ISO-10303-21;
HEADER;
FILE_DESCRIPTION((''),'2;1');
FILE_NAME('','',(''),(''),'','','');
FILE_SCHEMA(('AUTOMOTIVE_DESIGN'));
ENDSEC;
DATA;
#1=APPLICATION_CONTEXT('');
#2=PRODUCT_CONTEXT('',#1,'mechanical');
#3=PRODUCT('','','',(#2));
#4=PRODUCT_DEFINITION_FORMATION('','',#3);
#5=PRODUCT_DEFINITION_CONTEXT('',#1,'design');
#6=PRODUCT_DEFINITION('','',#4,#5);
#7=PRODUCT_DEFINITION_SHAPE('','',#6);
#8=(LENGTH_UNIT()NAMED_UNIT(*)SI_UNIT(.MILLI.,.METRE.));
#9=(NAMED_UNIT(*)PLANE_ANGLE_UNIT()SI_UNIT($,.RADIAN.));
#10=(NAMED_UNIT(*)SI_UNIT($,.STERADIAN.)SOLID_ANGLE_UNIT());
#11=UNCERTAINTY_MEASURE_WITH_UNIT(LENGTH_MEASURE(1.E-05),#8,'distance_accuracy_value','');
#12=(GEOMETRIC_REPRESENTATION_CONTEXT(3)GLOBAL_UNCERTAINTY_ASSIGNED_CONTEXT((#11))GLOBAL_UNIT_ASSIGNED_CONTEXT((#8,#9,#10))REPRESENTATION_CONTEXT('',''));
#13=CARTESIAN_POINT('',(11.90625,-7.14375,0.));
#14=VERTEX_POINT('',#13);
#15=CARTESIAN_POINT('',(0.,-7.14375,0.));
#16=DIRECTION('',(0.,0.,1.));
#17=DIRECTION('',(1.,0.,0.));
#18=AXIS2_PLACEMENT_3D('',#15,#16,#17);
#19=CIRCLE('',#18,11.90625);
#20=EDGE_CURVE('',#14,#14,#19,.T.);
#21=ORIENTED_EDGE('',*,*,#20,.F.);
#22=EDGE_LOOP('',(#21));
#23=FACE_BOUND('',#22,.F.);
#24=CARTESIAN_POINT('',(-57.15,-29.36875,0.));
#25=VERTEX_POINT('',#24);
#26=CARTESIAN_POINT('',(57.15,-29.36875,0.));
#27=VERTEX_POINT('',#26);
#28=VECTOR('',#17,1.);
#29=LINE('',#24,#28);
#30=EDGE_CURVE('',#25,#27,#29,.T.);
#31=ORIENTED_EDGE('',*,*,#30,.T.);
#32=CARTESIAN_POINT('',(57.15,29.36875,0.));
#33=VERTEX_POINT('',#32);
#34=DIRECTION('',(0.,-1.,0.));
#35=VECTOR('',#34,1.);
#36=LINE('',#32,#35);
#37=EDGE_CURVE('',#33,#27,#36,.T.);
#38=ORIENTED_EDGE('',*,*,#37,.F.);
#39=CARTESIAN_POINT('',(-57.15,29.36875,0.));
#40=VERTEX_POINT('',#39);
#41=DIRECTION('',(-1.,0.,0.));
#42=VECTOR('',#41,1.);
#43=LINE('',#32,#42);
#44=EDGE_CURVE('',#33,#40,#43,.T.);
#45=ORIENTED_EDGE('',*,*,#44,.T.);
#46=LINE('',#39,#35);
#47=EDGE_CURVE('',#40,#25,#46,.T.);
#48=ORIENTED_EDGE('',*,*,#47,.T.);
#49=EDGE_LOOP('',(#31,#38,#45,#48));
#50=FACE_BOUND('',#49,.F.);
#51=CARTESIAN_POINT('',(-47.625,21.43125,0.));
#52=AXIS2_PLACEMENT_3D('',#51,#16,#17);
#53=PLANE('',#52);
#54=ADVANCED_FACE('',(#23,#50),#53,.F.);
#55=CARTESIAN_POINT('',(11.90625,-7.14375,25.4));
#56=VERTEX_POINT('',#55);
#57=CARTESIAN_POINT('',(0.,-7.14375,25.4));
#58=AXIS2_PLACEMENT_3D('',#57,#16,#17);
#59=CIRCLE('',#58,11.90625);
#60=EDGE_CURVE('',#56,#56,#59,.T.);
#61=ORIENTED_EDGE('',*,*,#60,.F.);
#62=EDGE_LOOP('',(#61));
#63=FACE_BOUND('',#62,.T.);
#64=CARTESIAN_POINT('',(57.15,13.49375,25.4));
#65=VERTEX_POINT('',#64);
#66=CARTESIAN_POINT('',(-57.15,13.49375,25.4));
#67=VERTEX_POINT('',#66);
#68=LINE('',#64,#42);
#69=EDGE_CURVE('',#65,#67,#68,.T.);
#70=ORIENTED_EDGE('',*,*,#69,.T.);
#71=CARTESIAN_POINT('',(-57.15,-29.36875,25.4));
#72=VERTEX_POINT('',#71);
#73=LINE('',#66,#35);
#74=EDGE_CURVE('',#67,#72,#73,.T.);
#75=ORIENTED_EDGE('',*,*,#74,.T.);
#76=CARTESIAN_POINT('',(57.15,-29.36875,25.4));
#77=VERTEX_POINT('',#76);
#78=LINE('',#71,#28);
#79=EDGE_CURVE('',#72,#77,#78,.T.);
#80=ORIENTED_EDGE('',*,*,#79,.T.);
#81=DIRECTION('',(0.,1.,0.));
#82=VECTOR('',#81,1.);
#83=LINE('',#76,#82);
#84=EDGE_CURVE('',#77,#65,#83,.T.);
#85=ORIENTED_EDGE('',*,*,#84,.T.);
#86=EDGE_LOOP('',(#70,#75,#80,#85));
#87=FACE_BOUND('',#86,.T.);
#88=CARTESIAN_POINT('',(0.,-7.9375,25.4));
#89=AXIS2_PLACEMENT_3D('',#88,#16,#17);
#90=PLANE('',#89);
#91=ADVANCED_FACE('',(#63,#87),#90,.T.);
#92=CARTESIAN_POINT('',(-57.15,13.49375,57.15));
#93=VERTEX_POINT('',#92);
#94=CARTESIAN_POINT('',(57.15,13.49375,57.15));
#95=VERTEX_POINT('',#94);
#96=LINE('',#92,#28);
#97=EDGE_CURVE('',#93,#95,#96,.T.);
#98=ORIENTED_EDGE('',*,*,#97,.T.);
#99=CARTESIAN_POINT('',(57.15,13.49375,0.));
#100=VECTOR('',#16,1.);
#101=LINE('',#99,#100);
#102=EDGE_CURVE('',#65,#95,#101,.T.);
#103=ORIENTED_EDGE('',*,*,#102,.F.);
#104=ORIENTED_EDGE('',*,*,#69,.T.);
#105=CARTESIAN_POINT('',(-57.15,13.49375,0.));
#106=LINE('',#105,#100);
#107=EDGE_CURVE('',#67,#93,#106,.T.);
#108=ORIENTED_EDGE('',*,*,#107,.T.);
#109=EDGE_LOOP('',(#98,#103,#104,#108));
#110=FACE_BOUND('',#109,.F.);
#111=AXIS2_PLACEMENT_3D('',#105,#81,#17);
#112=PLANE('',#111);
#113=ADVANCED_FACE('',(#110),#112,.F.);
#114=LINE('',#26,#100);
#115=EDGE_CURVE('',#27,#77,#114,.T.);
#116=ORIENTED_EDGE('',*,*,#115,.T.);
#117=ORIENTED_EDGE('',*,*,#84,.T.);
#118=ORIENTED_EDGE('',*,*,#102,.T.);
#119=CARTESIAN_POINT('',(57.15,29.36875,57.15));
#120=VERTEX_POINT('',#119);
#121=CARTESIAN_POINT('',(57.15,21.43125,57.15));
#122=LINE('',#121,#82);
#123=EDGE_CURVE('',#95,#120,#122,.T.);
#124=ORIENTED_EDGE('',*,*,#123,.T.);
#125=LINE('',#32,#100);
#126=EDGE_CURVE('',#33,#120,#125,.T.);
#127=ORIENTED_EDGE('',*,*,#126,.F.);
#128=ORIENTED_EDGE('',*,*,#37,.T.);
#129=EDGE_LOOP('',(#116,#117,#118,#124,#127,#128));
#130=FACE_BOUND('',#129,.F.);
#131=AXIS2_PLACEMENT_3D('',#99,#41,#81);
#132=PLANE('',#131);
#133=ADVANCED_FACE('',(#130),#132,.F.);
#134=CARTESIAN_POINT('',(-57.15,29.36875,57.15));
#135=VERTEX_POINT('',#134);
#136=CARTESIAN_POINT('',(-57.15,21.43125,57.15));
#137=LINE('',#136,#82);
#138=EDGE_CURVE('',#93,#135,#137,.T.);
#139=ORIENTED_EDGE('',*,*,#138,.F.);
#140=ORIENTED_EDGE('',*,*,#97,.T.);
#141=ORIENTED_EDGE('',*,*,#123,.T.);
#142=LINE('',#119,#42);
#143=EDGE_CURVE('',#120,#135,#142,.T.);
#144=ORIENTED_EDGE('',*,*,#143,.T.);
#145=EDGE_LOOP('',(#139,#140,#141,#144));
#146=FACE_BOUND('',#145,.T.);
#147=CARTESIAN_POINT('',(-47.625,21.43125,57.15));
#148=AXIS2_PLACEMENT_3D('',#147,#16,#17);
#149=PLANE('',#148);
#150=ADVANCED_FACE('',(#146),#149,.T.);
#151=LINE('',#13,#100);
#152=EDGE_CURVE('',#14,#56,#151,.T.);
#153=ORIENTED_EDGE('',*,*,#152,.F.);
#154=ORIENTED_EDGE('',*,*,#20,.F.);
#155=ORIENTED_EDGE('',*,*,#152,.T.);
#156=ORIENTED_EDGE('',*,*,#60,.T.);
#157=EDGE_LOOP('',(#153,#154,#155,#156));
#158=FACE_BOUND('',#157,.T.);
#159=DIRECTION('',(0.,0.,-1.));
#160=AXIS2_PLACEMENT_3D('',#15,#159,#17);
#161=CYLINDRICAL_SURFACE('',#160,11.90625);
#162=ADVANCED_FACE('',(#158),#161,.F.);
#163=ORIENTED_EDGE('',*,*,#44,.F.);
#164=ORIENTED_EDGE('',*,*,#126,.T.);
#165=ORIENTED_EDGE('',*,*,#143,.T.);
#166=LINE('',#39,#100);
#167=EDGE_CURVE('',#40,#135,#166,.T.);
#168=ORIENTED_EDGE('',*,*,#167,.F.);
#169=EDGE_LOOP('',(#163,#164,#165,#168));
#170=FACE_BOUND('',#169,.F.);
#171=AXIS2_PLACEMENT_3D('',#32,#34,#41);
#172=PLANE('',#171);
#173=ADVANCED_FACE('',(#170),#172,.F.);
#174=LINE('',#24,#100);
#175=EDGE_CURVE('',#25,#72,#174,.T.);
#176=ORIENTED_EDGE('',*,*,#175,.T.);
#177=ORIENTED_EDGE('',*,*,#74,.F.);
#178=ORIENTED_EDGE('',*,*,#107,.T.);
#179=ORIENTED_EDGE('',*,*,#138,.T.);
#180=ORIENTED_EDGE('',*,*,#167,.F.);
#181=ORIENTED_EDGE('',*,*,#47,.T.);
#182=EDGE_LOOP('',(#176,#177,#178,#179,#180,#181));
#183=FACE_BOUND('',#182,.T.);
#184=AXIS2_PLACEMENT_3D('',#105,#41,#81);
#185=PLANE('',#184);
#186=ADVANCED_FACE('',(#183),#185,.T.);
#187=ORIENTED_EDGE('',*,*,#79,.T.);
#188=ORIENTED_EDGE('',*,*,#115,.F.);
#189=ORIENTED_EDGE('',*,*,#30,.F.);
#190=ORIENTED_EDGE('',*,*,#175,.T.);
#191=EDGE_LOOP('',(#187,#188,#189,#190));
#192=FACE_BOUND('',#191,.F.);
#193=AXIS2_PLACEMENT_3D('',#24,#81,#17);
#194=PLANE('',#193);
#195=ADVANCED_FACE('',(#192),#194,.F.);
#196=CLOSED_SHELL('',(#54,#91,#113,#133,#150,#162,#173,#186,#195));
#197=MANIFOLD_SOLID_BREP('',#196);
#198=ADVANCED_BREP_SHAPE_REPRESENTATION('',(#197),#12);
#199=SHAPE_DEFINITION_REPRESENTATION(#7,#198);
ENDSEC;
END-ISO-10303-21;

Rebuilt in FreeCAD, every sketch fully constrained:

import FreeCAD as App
import Part
import Sketcher
Q = App.Units.Quantity


def add_polygon(sketch, points):
    """Adds a closed chain of lines whose ends are joined by coincident constraints."""
    first, n = sketch.GeometryCount, len(points)
    for a, b in zip(points, points[1:] + points[:1]):
        sketch.addGeometry(Part.LineSegment(App.Vector(*a, 0), App.Vector(*b, 0)), False)
    for i in range(n):
        sketch.addConstraint(Sketcher.Constraint("Coincident", first + i, 2, first + (i + 1) % n, 1))

doc = App.newDocument("Part")
body = doc.addObject("PartDesign::Body", "Body")

sketch1 = body.newObject("Sketcher::SketchObject", "Sketch")
sketch1.AttachmentSupport = (doc.getObject("XY_Plane"), [""])
sketch1.MapMode = "FlatFace"
add_polygon(sketch1, [(-57, -29), (57, -29), (57, 13), (-57, 13)])
sketch1.addGeometry(Part.Circle(App.Vector(0, -7, 0), App.Vector(0, 0, 1), 12), False)
sketch1.addConstraint(Sketcher.Constraint("Horizontal", 0))
sketch1.addConstraint(Sketcher.Constraint("Vertical", 1))
sketch1.addConstraint(Sketcher.Constraint("Horizontal", 2))
sketch1.addConstraint(Sketcher.Constraint("Vertical", 3))
sketch1.addConstraint(Sketcher.Constraint("PointOnObject", 4, 3, -2))
sketch1.addConstraint(Sketcher.Constraint("Diameter", 4, Q("0.9375 in")))
sketch1.addConstraint(Sketcher.Constraint("DistanceX", 0, 1, 0, 2, Q("4.5 in")))
sketch1.addConstraint(Sketcher.Constraint("DistanceY", 1, 1, 1, 2, Q("1.6875 in")))
sketch1.addConstraint(Sketcher.Constraint("DistanceX", -1, 1, 0, 2, Q("2.25 in")))
sketch1.addConstraint(Sketcher.Constraint("DistanceY", 4, 3, -1, 1, Q("0.28125 in")))
sketch1.addConstraint(Sketcher.Constraint("DistanceY", 0, 2, -1, 1, Q("1.15625 in")))
pad1 = body.newObject("PartDesign::Pad", "Pad")
pad1.Profile = sketch1
pad1.Length = Q("1 in")

sketch2 = body.newObject("Sketcher::SketchObject", "Sketch001")
sketch2.AttachmentSupport = (doc.getObject("XY_Plane"), [""])
sketch2.MapMode = "FlatFace"
add_polygon(sketch2, [(-57, 29), (-57, 13), (57, 13), (57, 29)])
sketch2.addConstraint(Sketcher.Constraint("Vertical", 0))
sketch2.addConstraint(Sketcher.Constraint("Horizontal", 1))
sketch2.addConstraint(Sketcher.Constraint("Vertical", 2))
sketch2.addConstraint(Sketcher.Constraint("Horizontal", 3))
sketch2.addConstraint(Sketcher.Constraint("DistanceX", 1, 1, 1, 2, Q("4.5 in")))
sketch2.addConstraint(Sketcher.Constraint("DistanceY", 0, 2, 0, 1, Q("0.625 in")))
sketch2.addConstraint(Sketcher.Constraint("DistanceX", 0, 2, -1, 1, Q("2.25 in")))
sketch2.addConstraint(Sketcher.Constraint("DistanceY", -1, 1, 0, 2, Q("0.53125 in")))
pad2 = body.newObject("PartDesign::Pad", "Pad001")
pad2.Profile = sketch2
pad2.Length = Q("2.25 in")

doc.recompute()
